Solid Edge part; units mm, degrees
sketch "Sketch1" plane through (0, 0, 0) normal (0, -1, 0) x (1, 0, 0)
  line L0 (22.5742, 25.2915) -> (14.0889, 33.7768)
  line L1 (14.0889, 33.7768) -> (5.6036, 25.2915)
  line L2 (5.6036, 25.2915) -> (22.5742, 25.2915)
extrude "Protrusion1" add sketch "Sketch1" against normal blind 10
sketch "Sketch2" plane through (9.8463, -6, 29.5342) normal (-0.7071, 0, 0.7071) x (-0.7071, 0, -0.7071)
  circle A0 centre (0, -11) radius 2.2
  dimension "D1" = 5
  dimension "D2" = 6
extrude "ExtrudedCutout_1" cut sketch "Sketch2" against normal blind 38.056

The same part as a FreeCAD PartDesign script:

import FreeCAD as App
import Part
import Sketcher
Q = App.Units.Quantity

doc = App.newDocument("Part")
params = doc.addObject("Spreadsheet::Sheet", "Params")
for row, (alias, value) in enumerate([
    ("sketch1_length", "12 mm"),
    ("pad1_length", "10 mm"),
    ("sketch2_diameter", "4.4 mm"),
    ("pocket1_length", "38.056 mm"),
], start=1):
    params.set(f"A{row}", alias)
    params.set(f"B{row}", "=" + value)
    params.setAlias(f"B{row}", alias)

body = doc.addObject("PartDesign::Body", "Body")

sketch1 = doc.addObject("Sketcher::SketchObject", "Sketch")
body.addObject(sketch1)
sketch1.AttachmentSupport = (doc.XZ_Plane, [""])
sketch1.MapMode = "FlatFace"
sketch1.addGeometry([
    Part.LineSegment(App.Vector(6, 25, 0), App.Vector(23, 25, 0)),
    Part.LineSegment(App.Vector(23, 25, 0), App.Vector(14, 34, 0)),
    Part.LineSegment(App.Vector(14, 34, 0), App.Vector(6, 25, 0)),
], False)
sketch1.addConstraint([
    Sketcher.Constraint("Coincident", 0, 2, 1, 1),
    Sketcher.Constraint("Coincident", 1, 2, 2, 1),
    Sketcher.Constraint("Coincident", 2, 2, 0, 1),
    Sketcher.Constraint("Horizontal", 0),
    Sketcher.Constraint("Perpendicular", 1, 2),
    Sketcher.Constraint("Equal", 1, 2),
    Sketcher.Constraint("Distance", 1, Q("12 mm")),
    Sketcher.Constraint("DistanceX", -1, 1, 1, 2, Q("14.089 mm")),
    Sketcher.Constraint("DistanceY", -1, 1, 0, 2, Q("25.2915 mm")),
])
sketch1.setExpression("Constraints[6]", "Params.sketch1_length")
pad1 = doc.addObject("PartDesign::Pad", "Pad")
body.addObject(pad1)
pad1.Profile = sketch1
pad1.setExpression("Length", "Params.pad1_length")
pad1.Reversed = True

sketch2 = doc.addObject("Sketcher::SketchObject", "Sketch001")
body.addObject(sketch2)
sketch2.Placement = App.Placement(App.Vector(9.8463, -6, 29.5342), App.Rotation(App.Vector(-0.707106781, 0, -0.707106781), App.Vector(0, -0.999999999, 0), App.Vector(-0.707106781, 0, 0.707106781), "ZXY"))
sketch2.addGeometry(Part.Circle(App.Vector(0, -11, 0), App.Vector(0, 0, 1), 2.2), False)
sketch2.addConstraint([
    Sketcher.Constraint("PointOnObject", 0, 3, -2),
    Sketcher.Constraint("Diameter", 0, Q("4.4 mm")),
    Sketcher.Constraint("DistanceY", 0, 3, -1, 1, Q("11 mm")),
])
sketch2.setExpression("Constraints[1]", "Params.sketch2_diameter")
pocket1 = doc.addObject("PartDesign::Pocket", "Pocket")
body.addObject(pocket1)
pocket1.Profile = sketch2
pocket1.setExpression("Length", "Params.pocket1_length")

doc.recompute()
